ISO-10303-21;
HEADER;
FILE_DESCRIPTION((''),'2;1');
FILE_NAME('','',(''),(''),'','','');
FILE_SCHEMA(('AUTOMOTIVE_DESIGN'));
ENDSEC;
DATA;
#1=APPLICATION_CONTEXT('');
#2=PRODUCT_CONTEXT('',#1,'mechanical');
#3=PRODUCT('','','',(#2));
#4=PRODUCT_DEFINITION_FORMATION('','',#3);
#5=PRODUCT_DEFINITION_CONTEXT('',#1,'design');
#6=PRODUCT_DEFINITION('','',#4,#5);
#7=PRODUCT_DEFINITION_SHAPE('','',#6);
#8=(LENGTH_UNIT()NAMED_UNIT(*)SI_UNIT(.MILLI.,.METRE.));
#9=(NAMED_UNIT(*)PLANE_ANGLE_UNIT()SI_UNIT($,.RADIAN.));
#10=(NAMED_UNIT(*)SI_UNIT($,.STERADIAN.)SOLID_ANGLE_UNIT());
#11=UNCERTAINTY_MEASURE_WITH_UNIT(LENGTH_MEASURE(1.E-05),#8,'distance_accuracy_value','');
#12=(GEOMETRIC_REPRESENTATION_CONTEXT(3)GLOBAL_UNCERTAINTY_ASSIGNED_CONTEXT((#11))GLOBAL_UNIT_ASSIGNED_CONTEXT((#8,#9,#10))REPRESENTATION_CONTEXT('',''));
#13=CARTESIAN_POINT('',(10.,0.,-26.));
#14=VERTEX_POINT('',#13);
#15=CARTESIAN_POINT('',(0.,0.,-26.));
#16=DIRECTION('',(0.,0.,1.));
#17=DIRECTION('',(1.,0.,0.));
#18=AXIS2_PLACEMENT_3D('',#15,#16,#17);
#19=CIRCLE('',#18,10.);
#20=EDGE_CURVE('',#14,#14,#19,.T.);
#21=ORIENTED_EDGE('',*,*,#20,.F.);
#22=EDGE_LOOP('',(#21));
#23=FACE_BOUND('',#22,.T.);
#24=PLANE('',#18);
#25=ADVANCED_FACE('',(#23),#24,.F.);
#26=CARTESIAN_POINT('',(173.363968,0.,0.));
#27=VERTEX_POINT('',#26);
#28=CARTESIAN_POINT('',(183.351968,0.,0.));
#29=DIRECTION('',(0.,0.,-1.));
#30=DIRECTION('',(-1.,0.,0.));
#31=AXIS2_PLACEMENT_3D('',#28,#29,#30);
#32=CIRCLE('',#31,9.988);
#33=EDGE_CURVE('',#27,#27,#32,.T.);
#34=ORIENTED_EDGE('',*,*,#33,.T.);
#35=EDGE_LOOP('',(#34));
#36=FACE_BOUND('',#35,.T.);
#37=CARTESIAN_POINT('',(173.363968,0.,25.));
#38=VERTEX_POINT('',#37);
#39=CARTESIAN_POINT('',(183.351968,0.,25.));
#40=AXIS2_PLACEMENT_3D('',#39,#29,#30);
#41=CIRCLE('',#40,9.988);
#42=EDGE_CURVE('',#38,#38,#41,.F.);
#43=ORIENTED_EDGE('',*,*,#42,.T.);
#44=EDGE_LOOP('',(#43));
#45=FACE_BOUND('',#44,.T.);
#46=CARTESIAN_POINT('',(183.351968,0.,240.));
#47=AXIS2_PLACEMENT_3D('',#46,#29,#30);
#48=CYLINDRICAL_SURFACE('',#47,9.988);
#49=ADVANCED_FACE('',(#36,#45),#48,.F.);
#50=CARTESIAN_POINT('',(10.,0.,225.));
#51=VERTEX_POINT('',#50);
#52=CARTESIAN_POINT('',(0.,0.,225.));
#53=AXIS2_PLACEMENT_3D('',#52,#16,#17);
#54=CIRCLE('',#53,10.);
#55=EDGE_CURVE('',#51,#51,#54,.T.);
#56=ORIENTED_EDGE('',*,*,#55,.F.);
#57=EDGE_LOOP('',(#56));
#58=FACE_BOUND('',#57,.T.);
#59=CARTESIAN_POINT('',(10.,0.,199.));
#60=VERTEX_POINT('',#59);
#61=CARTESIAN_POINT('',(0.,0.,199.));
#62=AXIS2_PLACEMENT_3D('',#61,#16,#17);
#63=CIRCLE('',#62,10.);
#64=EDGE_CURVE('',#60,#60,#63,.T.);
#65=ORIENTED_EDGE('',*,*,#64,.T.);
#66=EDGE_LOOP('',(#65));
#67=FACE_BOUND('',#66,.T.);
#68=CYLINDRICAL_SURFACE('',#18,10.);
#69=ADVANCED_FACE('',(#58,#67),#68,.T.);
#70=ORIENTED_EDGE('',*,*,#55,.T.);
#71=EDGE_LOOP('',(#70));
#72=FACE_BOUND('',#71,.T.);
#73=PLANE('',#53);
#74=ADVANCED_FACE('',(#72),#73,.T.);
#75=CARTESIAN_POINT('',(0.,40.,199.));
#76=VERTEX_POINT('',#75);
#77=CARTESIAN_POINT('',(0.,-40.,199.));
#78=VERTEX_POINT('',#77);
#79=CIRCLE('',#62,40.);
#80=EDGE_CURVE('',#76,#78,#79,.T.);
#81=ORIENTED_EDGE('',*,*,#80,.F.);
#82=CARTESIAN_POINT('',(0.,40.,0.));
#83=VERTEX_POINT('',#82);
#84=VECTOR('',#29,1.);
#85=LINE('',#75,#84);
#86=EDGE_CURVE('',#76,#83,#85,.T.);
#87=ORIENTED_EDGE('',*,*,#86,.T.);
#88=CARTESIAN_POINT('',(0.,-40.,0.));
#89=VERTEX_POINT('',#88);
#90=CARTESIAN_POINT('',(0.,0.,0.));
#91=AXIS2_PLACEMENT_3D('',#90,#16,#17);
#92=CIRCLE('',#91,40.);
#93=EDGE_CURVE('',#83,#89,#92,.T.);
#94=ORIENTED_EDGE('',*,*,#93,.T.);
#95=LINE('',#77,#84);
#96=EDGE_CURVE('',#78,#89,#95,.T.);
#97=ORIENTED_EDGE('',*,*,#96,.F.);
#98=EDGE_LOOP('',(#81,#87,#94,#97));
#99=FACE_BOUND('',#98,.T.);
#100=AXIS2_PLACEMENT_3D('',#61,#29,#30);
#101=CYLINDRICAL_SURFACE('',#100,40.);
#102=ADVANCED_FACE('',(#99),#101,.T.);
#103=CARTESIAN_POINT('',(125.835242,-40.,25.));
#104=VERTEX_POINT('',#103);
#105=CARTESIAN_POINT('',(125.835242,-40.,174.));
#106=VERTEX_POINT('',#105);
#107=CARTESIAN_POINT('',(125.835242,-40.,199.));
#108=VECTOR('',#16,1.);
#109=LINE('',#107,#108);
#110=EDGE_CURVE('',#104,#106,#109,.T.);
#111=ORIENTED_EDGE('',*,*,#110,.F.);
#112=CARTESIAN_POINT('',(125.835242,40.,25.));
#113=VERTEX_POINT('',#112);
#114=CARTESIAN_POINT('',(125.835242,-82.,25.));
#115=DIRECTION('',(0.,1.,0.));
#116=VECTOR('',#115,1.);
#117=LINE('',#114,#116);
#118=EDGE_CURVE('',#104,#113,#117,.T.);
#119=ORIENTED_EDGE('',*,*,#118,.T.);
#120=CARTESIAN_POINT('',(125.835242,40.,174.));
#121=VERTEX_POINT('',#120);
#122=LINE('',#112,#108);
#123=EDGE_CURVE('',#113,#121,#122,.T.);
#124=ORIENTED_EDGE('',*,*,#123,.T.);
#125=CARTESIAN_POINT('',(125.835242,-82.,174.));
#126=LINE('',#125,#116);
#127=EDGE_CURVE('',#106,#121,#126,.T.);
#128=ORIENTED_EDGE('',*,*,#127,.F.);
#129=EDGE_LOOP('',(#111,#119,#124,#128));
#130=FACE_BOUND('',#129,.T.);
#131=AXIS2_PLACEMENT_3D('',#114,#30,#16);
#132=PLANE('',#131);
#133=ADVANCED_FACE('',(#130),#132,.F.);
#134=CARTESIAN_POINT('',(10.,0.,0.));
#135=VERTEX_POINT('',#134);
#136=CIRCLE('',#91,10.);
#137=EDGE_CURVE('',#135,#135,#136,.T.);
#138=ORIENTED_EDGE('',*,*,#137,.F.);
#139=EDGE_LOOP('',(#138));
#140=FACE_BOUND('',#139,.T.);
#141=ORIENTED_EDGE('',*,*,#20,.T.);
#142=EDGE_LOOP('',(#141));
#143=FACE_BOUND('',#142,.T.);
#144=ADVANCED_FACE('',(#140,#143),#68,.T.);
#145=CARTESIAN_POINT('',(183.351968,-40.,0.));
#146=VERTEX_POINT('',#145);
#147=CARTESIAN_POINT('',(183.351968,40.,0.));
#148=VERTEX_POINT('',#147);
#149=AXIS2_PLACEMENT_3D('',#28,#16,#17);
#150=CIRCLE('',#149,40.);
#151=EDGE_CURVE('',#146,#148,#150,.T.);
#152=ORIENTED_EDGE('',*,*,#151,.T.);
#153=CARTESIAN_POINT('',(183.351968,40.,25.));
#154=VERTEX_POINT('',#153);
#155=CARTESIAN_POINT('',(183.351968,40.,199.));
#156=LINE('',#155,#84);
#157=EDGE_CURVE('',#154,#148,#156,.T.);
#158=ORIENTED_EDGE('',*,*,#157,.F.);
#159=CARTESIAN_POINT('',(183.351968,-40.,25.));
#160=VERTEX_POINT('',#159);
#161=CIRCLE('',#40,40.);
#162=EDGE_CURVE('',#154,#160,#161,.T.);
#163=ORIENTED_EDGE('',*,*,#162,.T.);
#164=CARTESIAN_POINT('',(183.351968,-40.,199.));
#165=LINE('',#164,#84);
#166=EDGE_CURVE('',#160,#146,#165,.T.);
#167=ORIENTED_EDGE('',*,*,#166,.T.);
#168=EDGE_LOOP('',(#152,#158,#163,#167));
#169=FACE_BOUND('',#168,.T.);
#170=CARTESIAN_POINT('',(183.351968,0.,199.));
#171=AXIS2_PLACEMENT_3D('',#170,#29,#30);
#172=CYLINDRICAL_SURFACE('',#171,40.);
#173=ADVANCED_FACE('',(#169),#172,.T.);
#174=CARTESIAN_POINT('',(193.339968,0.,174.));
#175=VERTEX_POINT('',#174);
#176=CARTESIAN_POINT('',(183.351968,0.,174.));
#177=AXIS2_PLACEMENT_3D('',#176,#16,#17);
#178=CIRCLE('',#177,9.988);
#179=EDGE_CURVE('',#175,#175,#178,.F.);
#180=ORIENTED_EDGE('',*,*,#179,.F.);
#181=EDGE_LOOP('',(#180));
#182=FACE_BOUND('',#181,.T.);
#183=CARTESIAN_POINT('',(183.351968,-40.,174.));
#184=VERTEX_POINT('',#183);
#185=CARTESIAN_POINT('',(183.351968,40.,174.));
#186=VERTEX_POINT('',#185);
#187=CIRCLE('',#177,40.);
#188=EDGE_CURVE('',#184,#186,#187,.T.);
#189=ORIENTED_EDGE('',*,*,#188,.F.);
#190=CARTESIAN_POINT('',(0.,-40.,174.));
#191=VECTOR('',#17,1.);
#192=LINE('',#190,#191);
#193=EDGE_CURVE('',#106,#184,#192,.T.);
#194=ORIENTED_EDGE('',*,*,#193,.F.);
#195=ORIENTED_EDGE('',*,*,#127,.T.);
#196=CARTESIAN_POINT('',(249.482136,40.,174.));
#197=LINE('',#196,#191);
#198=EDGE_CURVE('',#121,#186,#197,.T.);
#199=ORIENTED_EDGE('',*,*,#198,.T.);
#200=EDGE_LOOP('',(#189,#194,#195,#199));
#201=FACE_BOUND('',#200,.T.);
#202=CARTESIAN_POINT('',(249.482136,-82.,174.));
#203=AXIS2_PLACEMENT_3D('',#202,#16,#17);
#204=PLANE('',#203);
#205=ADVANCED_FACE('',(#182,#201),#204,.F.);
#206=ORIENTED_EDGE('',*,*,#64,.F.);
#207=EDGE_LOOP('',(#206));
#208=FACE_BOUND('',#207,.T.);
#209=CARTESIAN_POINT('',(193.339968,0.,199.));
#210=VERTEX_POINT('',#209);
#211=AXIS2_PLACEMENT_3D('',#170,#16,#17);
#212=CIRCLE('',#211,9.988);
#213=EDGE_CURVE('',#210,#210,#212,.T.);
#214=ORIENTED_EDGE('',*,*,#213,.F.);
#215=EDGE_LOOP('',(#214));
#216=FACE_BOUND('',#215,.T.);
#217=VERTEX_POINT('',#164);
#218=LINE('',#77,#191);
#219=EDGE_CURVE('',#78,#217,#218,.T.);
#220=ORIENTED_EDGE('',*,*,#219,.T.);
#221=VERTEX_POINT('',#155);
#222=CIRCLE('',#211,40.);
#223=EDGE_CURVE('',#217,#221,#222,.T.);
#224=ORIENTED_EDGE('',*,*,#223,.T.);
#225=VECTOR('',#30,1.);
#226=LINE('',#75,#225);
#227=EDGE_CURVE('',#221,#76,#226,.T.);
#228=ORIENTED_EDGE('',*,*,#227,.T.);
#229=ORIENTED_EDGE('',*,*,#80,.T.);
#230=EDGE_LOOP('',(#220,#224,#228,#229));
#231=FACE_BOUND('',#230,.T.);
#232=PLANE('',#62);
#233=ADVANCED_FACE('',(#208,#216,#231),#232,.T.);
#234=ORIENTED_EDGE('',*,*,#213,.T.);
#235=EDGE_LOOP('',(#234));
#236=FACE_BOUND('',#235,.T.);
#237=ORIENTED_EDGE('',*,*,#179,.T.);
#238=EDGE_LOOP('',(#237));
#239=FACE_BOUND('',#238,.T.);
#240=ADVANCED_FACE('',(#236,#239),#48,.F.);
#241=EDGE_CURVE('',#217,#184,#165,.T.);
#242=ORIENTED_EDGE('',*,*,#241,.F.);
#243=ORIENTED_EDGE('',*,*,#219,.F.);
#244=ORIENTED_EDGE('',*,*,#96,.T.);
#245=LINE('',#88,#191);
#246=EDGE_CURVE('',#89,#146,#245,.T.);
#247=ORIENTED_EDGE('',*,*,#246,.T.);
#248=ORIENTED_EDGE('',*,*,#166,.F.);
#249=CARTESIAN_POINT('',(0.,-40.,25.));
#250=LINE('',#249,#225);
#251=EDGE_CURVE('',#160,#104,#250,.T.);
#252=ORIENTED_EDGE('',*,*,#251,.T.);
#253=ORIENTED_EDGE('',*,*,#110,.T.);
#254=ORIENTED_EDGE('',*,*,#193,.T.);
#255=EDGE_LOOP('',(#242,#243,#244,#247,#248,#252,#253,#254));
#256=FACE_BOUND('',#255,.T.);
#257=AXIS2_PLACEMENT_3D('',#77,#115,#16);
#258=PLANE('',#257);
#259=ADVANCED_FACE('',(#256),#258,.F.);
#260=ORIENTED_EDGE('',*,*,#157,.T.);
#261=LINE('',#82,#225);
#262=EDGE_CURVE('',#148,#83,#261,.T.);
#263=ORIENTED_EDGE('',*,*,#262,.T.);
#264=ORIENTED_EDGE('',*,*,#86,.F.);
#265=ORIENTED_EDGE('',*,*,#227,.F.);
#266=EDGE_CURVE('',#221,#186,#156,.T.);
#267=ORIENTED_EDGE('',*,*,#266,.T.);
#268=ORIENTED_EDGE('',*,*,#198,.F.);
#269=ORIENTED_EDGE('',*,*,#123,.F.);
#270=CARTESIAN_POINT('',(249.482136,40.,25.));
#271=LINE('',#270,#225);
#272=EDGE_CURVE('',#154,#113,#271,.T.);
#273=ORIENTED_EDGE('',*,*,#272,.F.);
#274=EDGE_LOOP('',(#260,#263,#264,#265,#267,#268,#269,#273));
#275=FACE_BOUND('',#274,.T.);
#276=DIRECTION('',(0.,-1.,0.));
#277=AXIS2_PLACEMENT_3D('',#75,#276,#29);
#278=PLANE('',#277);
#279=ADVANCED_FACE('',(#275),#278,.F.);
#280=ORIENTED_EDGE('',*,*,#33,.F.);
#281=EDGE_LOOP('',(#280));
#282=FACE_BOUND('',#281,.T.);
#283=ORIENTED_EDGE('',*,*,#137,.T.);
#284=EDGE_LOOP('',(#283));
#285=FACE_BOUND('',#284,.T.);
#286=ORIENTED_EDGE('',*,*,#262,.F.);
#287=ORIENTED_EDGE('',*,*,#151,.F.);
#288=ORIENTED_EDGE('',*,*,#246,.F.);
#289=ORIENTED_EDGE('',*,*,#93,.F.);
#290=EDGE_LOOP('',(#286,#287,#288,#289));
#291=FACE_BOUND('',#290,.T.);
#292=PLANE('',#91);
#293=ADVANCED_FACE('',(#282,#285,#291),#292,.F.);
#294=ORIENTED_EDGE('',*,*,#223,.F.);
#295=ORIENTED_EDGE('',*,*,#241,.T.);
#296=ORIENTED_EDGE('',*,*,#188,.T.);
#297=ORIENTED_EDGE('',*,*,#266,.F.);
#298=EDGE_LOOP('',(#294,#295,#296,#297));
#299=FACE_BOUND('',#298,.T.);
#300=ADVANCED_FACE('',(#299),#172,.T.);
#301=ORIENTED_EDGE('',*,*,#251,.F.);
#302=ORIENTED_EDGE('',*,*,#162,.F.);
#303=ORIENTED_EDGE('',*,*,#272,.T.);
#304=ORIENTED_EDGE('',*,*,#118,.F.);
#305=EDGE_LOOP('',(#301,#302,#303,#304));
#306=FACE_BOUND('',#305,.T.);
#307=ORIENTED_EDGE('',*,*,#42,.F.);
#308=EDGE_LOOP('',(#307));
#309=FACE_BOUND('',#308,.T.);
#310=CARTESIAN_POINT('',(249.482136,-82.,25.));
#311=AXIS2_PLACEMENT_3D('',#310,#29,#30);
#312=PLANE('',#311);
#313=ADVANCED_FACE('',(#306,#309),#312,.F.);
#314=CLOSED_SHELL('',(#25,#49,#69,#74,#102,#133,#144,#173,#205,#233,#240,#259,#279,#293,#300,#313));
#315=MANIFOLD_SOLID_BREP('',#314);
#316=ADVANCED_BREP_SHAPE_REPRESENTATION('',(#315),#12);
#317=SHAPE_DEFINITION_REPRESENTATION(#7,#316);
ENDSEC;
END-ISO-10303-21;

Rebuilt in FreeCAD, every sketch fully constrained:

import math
import FreeCAD as App
import Part
import Sketcher

doc = App.newDocument("Part")
body = doc.addObject("PartDesign::Body", "Body")

sketch1 = doc.addObject("Sketcher::SketchObject", "Sketch")
body.addObject(sketch1)
sketch1.AttachmentSupport = (doc.XY_Plane, [""])
sketch1.MapMode = "FlatFace"
sketch1.addGeometry([
    Part.LineSegment(App.Vector(183.351968, 40, 0), App.Vector(0, 40, 0)),
    Part.ArcOfCircle(Part.Circle(App.Vector(0, 0, 0), App.Vector(0, 0, 1), 40), math.radians(90), math.radians(270)),
    Part.LineSegment(App.Vector(0, -40, 0), App.Vector(183.351968, -40, 0)),
    Part.ArcOfCircle(Part.Circle(App.Vector(183.351968, 0, 0), App.Vector(0, 0, 1), 40), math.radians(-90), math.radians(90)),
], False)
sketch1.addConstraint([
    Sketcher.Constraint("Tangent", 0, 2, 1, 1),
    Sketcher.Constraint("Tangent", 1, 2, 2, 1),
    Sketcher.Constraint("Tangent", 2, 2, 3, 1),
    Sketcher.Constraint("Tangent", 3, 2, 0, 1),
    Sketcher.Constraint("Horizontal", 0),
    Sketcher.Constraint("Horizontal", 2),
    Sketcher.Constraint("Coincident", 1, 3, -1, 1),
    Sketcher.Constraint("Radius", 1, 40.0),
    Sketcher.Constraint("DistanceX", 0, 2, 0, 1, 183.351968),
])
pad1 = doc.addObject("PartDesign::Pad", "Pad")
body.addObject(pad1)
pad1.Profile = sketch1
pad1.Length = 199

sketch2 = doc.addObject("Sketcher::SketchObject", "Sketch001")
body.addObject(sketch2)
sketch2.AttachmentSupport = (doc.XY_Plane, [""])
sketch2.MapMode = "FlatFace"
sketch2.addGeometry(Part.Circle(App.Vector(183.351968, 0, 0), App.Vector(0, 0, 1), 9.988), False)
sketch2.addConstraint([
    Sketcher.Constraint("PointOnObject", 0, 3, -1),
    Sketcher.Constraint("Diameter", 0, 19.976),
    Sketcher.Constraint("DistanceX", -1, 1, 0, 3, 183.351968),
])
pocket1 = doc.addObject("PartDesign::Pocket", "Pocket")
body.addObject(pocket1)
pocket1.Profile = sketch2
pocket1.Length = 240
pocket1.Reversed = True

sketch3 = doc.addObject("Sketcher::SketchObject", "Sketch002")
body.addObject(sketch3)
sketch3.AttachmentSupport = (doc.XY_Plane, [""])
sketch3.MapMode = "FlatFace"
sketch3.AttachmentOffset = App.Placement(App.Vector(0, 0, 199), App.Rotation())
sketch3.addGeometry(Part.Circle(App.Vector(0, 0, 0), App.Vector(0, 0, 1), 10), False)
sketch3.addConstraint([
    Sketcher.Constraint("Coincident", 0, 3, -1, 1),
    Sketcher.Constraint("Diameter", 0, 20.0),
])
pad2 = doc.addObject("PartDesign::Pad", "Pad001")
body.addObject(pad2)
pad2.Profile = sketch3
pad2.Type = "TwoLengths"
pad2.Length = 26
pad2.Length2 = 225

sketch4 = doc.addObject("Sketcher::SketchObject", "Sketch003")
body.addObject(sketch4)
sketch4.AttachmentSupport = (doc.XZ_Plane, [""])
sketch4.MapMode = "FlatFace"
sketch4.AttachmentOffset = App.Placement(App.Vector(0, 0, -40), App.Rotation())
sketch4.addGeometry([
    Part.LineSegment(App.Vector(125.835242, 25, 0), App.Vector(125.835242, 174, 0)),
    Part.LineSegment(App.Vector(125.835242, 174, 0), App.Vector(249.482136, 174, 0)),
    Part.LineSegment(App.Vector(249.482136, 174, 0), App.Vector(249.482136, 25, 0)),
    Part.LineSegment(App.Vector(249.482136, 25, 0), App.Vector(125.835242, 25, 0)),
], False)
sketch4.addConstraint([
    Sketcher.Constraint("Coincident", 0, 2, 1, 1),
    Sketcher.Constraint("Coincident", 1, 2, 2, 1),
    Sketcher.Constraint("Coincident", 2, 2, 3, 1),
    Sketcher.Constraint("Coincident", 3, 2, 0, 1),
    Sketcher.Constraint("Vertical", 0),
    Sketcher.Constraint("Horizontal", 1),
    Sketcher.Constraint("Vertical", 2),
    Sketcher.Constraint("Horizontal", 3),
    Sketcher.Constraint("DistanceY", 0, 1, 0, 2, 149.0),
    Sketcher.Constraint("DistanceY", -1, 1, 0, 2, 174.0),
    Sketcher.Constraint("DistanceX", 1, 1, 1, 2, 123.646893),
    Sketcher.Constraint("DistanceX", -1, 1, 0, 2, 125.835242),
])
pocket2 = doc.addObject("PartDesign::Pocket", "Pocket001")
body.addObject(pocket2)
pocket2.Profile = sketch4
pocket2.Length = 122
pocket2.Reversed = True

doc.recompute()
